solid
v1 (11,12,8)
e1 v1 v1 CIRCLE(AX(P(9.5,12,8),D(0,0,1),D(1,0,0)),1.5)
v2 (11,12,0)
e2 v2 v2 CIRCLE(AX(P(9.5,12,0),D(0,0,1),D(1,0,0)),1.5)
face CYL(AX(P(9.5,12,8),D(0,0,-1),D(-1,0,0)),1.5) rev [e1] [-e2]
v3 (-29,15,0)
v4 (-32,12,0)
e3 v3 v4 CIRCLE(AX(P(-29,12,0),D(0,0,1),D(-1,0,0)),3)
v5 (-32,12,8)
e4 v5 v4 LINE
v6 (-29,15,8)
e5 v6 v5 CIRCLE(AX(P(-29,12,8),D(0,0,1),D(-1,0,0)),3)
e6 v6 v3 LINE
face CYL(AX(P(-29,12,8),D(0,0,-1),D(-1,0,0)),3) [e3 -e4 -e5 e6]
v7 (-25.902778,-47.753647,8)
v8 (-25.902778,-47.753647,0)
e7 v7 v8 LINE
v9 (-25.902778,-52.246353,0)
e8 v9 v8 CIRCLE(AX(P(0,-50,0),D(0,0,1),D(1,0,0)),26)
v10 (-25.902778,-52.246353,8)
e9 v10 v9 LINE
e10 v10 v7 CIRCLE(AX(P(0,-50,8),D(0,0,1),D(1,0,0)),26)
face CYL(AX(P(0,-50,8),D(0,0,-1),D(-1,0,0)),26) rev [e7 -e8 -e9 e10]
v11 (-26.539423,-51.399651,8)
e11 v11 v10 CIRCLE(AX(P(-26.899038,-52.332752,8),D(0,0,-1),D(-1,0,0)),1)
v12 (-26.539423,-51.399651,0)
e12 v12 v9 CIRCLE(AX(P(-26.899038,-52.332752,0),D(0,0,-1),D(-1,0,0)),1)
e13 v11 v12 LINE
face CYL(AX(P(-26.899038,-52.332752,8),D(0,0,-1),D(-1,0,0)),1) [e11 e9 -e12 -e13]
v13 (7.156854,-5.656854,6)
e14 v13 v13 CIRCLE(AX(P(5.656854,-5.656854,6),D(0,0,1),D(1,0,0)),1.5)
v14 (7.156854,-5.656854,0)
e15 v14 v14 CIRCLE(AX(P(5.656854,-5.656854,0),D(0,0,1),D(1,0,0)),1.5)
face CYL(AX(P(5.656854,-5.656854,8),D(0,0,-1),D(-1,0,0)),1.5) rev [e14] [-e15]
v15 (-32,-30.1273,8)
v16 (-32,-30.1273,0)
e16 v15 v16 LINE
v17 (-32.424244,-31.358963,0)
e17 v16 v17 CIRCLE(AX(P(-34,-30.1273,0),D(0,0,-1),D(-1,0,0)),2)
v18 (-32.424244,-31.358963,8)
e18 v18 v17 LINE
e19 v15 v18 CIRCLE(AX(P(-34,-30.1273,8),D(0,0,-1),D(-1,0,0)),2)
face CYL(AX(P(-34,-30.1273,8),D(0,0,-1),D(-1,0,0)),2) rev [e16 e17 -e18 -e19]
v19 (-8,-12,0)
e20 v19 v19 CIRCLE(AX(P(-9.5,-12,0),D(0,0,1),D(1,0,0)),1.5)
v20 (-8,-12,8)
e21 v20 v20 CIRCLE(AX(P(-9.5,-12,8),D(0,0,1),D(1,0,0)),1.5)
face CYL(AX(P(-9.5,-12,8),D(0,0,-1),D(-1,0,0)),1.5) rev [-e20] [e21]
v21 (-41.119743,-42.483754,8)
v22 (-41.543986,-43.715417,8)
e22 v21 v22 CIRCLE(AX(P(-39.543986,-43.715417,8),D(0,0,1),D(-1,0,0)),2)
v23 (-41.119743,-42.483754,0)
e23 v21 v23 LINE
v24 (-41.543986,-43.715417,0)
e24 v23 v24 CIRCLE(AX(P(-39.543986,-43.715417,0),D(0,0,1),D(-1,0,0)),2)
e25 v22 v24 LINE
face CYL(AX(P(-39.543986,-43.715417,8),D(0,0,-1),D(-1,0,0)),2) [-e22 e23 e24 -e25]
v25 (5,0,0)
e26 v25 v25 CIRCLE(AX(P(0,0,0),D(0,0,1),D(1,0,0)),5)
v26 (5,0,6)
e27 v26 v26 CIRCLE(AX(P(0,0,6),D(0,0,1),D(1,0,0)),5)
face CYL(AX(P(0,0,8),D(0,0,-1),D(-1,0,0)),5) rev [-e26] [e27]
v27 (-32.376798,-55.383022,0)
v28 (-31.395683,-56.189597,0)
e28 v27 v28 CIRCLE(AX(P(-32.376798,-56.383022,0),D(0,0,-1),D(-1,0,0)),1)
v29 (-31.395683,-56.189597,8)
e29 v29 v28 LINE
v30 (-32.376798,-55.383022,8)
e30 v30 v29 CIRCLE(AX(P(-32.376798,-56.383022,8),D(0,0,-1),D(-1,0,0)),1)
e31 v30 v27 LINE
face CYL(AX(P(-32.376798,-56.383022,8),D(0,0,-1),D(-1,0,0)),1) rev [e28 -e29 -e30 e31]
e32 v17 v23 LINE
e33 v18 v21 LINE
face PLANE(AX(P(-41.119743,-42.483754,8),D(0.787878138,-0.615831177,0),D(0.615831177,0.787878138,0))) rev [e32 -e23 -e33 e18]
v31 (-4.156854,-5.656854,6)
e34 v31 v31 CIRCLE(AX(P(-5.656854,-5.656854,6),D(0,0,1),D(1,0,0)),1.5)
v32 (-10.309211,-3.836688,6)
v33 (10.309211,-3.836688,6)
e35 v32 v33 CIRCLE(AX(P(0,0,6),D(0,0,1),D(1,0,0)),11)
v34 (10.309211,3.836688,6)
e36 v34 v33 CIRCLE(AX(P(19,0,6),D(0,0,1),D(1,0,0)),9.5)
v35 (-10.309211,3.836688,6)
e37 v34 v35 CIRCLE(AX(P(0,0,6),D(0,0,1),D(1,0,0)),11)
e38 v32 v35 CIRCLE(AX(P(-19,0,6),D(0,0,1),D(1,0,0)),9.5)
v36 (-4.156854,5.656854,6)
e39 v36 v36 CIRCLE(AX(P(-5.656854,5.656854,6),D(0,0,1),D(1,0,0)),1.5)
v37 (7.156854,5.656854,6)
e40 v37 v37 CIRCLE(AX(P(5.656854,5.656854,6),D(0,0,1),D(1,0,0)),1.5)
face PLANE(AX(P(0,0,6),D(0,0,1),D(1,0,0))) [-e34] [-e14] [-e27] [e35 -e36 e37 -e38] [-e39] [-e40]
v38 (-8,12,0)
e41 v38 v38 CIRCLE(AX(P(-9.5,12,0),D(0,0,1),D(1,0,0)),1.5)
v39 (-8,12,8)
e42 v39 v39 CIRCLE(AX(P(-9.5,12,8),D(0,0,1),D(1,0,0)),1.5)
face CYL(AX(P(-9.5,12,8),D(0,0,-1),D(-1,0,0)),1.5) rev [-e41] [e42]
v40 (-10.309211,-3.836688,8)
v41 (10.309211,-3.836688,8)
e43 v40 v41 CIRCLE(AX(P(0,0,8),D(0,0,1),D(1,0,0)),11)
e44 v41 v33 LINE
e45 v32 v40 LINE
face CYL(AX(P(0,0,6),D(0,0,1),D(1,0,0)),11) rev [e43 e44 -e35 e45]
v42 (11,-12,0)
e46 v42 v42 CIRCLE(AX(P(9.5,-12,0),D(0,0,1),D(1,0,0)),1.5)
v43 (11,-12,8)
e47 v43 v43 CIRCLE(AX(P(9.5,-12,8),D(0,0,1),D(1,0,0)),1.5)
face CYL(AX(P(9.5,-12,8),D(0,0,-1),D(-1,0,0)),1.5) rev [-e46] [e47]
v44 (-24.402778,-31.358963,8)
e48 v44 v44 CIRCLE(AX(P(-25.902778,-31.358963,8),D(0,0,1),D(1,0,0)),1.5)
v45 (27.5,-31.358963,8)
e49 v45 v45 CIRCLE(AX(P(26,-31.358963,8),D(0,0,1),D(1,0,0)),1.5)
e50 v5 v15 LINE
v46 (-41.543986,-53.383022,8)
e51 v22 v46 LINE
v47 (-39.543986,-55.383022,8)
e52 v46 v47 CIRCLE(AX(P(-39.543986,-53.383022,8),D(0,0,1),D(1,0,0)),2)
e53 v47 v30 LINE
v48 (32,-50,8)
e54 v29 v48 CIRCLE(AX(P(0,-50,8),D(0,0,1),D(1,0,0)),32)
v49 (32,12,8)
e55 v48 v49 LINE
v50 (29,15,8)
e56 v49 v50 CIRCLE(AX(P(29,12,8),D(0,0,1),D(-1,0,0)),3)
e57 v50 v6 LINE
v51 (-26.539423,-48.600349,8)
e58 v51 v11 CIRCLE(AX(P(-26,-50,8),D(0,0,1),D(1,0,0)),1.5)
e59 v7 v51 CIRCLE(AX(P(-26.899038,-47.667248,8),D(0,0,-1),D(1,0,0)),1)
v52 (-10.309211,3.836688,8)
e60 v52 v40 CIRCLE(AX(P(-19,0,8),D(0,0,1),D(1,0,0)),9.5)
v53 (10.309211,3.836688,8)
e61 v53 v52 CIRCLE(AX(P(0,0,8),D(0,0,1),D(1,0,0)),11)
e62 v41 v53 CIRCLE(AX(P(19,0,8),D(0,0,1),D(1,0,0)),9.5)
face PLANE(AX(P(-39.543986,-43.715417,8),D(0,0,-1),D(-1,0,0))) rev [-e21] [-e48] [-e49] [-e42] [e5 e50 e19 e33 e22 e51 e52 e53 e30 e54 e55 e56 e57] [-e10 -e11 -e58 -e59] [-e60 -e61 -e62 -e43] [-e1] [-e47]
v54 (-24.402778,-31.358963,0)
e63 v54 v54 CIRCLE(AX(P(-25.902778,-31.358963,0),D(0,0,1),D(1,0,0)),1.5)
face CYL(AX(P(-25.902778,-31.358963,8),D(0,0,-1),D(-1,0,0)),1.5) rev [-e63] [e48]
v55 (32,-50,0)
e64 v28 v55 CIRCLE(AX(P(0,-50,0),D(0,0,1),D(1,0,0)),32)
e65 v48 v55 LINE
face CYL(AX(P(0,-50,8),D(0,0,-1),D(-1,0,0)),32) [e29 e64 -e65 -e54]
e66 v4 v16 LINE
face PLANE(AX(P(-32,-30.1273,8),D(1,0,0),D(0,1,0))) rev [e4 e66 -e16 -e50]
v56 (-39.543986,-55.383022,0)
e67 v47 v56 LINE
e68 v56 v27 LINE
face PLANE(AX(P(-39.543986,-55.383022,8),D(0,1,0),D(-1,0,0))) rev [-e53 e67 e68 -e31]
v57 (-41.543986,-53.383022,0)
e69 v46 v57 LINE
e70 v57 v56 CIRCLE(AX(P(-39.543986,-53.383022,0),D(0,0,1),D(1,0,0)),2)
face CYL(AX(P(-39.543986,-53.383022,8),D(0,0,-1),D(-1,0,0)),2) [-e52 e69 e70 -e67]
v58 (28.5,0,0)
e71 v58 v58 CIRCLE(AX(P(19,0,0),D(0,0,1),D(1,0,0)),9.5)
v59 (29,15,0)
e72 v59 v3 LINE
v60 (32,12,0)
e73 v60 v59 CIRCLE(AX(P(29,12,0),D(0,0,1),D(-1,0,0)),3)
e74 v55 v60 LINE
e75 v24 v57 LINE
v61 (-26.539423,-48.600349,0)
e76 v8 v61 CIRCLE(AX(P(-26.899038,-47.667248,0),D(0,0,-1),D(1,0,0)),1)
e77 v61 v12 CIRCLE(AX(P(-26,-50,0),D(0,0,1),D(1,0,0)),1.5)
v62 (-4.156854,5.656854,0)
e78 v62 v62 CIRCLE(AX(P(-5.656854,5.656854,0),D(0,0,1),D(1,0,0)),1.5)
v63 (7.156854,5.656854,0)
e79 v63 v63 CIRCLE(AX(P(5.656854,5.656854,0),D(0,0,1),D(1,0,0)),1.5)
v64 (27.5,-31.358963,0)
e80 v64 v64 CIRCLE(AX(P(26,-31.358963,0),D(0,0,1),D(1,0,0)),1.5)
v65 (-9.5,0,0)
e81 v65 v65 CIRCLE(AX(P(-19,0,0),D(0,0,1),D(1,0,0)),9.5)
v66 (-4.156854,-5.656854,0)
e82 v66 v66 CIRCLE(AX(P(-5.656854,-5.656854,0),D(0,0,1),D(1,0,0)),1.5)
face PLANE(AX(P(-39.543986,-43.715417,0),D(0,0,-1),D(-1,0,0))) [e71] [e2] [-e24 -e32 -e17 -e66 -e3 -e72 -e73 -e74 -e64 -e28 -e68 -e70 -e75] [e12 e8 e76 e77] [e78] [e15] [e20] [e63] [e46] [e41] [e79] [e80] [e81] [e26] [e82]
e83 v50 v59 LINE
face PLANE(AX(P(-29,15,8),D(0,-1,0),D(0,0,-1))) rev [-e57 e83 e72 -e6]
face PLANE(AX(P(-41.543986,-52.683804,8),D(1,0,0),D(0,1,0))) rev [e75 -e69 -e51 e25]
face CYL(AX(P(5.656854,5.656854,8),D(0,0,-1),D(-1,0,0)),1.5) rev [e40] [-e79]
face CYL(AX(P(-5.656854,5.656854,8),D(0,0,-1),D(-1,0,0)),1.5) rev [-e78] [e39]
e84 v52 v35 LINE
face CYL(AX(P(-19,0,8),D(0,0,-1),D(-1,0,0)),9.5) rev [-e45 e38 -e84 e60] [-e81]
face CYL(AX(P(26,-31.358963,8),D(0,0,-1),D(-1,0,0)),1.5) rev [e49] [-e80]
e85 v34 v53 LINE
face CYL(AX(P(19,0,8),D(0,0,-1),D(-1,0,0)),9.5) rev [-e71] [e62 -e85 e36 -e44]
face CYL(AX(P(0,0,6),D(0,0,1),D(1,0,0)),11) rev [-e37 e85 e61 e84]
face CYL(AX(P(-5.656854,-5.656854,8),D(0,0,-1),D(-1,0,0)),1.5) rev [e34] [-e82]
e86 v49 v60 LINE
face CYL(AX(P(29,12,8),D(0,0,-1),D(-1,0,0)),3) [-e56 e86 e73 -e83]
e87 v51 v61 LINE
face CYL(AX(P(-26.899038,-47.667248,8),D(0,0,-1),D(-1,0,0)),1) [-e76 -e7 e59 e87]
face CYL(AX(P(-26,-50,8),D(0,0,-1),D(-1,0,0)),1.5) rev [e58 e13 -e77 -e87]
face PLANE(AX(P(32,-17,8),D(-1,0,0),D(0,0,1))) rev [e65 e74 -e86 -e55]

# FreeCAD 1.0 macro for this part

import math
import FreeCAD as App
import Part
import Sketcher
Q = App.Units.Quantity

doc = App.newDocument("Part")
body = doc.addObject("PartDesign::Body", "Body")

# Sketch on XY plane
sketch1 = body.newObject("Sketcher::SketchObject", "Sketch")
sketch1.AttachmentSupport = (doc.getObject("XY_Plane"), [""])
sketch1.MapMode = "FlatFace"
sketch1.addGeometry([
    Part.LineSegment(App.Vector(32, -50, 0), App.Vector(32, 12, 0)),  # 0
    Part.ArcOfCircle(Part.Circle(App.Vector(29, 12, 0), App.Vector(0, 0, 1), 3), math.radians(0), math.radians(90)),  # 1
    Part.LineSegment(App.Vector(29, 15, 0), App.Vector(-29, 15, 0)),  # 2
    Part.ArcOfCircle(Part.Circle(App.Vector(-29, 12, 0), App.Vector(0, 0, 1), 3), math.radians(90), math.radians(180)),  # 3
    Part.LineSegment(App.Vector(-32, 12, 0), App.Vector(-32, -30.1, 0)),  # 4
    Part.ArcOfCircle(Part.Circle(App.Vector(-34, -30.1, 0), App.Vector(0, 0, 1), 2), math.radians(-38), math.radians(0)),  # 5
    Part.LineSegment(App.Vector(-32.4, -31.4, 0), App.Vector(-41.1, -42.5, 0)),  # 6
    Part.ArcOfCircle(Part.Circle(App.Vector(-39.5, -43.7, 0), App.Vector(0, 0, 1), 2), math.radians(142), math.radians(180)),  # 7
    Part.LineSegment(App.Vector(-41.5, -43.7, 0), App.Vector(-41.5, -53.4, 0)),  # 8
    Part.ArcOfCircle(Part.Circle(App.Vector(-39.5, -53.4, 0), App.Vector(0, 0, 1), 2), math.radians(180), math.radians(270)),  # 9
    Part.LineSegment(App.Vector(-39.5, -55.4, 0), App.Vector(-32.4, -55.4, 0)),  # 10
    Part.ArcOfCircle(Part.Circle(App.Vector(-32.4, -56.4, 0), App.Vector(0, 0, 1), 1), math.radians(11), math.radians(90)),  # 11
    Part.ArcOfCircle(Part.Circle(App.Vector(0, -50, 0), App.Vector(0, 0, 1), 32), math.radians(-169), math.radians(0)),  # 12
    Part.Circle(App.Vector(-25.9, -31.4, 0), App.Vector(0, 0, 1), 1.5),  # 13
    Part.ArcOfCircle(Part.Circle(App.Vector(0, -50, 0), App.Vector(0, 0, 1), 26), math.radians(-175), math.radians(175)),  # 14
    Part.ArcOfCircle(Part.Circle(App.Vector(-26.9, -52.3, 0), App.Vector(0, 0, 1), 1), math.radians(5), math.radians(69)),  # 15
    Part.ArcOfCircle(Part.Circle(App.Vector(-26, -50, 0), App.Vector(0, 0, 1), 1.5), math.radians(111), math.radians(249)),  # 16
    Part.ArcOfCircle(Part.Circle(App.Vector(-26.9, -47.7, 0), App.Vector(0, 0, 1), 1), math.radians(-69), math.radians(-5)),  # 17
    Part.Circle(App.Vector(26, -31.4, 0), App.Vector(0, 0, 1), 1.5),  # 18
    Part.Circle(App.Vector(-9.5, -12, 0), App.Vector(0, 0, 1), 1.5),  # 19
    Part.Circle(App.Vector(-19, 0, 0), App.Vector(0, 0, 1), 9.5),  # 20
    Part.Circle(App.Vector(-5.7, -5.7, 0), App.Vector(0, 0, 1), 1.5),  # 21
    Part.Circle(App.Vector(-9.5, 12, 0), App.Vector(0, 0, 1), 1.5),  # 22
    Part.Circle(App.Vector(-5.7, 5.7, 0), App.Vector(0, 0, 1), 1.5),  # 23
    Part.Circle(App.Vector(9.5, -12, 0), App.Vector(0, 0, 1), 1.5),  # 24
    Part.Circle(App.Vector(5.7, -5.7, 0), App.Vector(0, 0, 1), 1.5),  # 25
    Part.Circle(App.Vector(0, 0, 0), App.Vector(0, 0, 1), 5),  # 26
    Part.Circle(App.Vector(5.7, 5.7, 0), App.Vector(0, 0, 1), 1.5),  # 27
    Part.Circle(App.Vector(9.5, 12, 0), App.Vector(0, 0, 1), 1.5),  # 28
    Part.Circle(App.Vector(19, 0, 0), App.Vector(0, 0, 1), 9.5),  # 29
], False)
sketch1.addConstraint([
    Sketcher.Constraint("Tangent", 0, 2, 1, 1),
    Sketcher.Constraint("Tangent", 1, 2, 2, 1),
    Sketcher.Constraint("Tangent", 2, 2, 3, 1),
    Sketcher.Constraint("Tangent", 3, 2, 4, 1),
    Sketcher.Constraint("Tangent", 4, 2, 5, 2),
    Sketcher.Constraint("Tangent", 5, 1, 6, 1),
    Sketcher.Constraint("Tangent", 6, 2, 7, 1),
    Sketcher.Constraint("Tangent", 7, 2, 8, 1),
    Sketcher.Constraint("Tangent", 8, 2, 9, 1),
    Sketcher.Constraint("Tangent", 9, 2, 10, 1),
    Sketcher.Constraint("Tangent", 10, 2, 11, 2),
    Sketcher.Constraint("Tangent", 11, 1, 12, 1),
    Sketcher.Constraint("Tangent", 12, 2, 0, 1),
    Sketcher.Constraint("Tangent", 14, 1, 15, 1),
    Sketcher.Constraint("Tangent", 15, 2, 16, 2),
    Sketcher.Constraint("Tangent", 16, 1, 17, 1),
    Sketcher.Constraint("Tangent", 17, 2, 14, 2),
    Sketcher.Constraint("Vertical", 0),
    Sketcher.Constraint("Horizontal", 2),
    Sketcher.Constraint("Vertical", 4),
    Sketcher.Constraint("Vertical", 8),
    Sketcher.Constraint("Horizontal", 10),
    Sketcher.Constraint("Coincident", 26, 3, -1, 1),
    Sketcher.Constraint("Coincident", 14, 3, 12, 3),
    Sketcher.Constraint("Equal", 1, 3),
    Sketcher.Constraint("Equal", 5, 7),
    Sketcher.Constraint("Equal", 7, 9),
    Sketcher.Constraint("Equal", 11, 15),
    Sketcher.Constraint("Equal", 13, 16),
    Sketcher.Constraint("Equal", 15, 17),
    Sketcher.Constraint("Equal", 16, 18),
    Sketcher.Constraint("Equal", 18, 19),
    Sketcher.Constraint("Equal", 19, 21),
    Sketcher.Constraint("Equal", 21, 22),
    Sketcher.Constraint("Equal", 22, 23),
    Sketcher.Constraint("Equal", 23, 24),
    Sketcher.Constraint("Equal", 24, 25),
    Sketcher.Constraint("Equal", 25, 27),
    Sketcher.Constraint("Equal", 27, 28),
    Sketcher.Constraint("Equal", 20, 29),
    Sketcher.Constraint("Symmetric", 22, 3, 24, 3, -1, 1),
    Sketcher.Constraint("Symmetric", 23, 3, 25, 3, -1, 1),
    Sketcher.Constraint("Symmetric", 21, 3, 27, 3, -1, 1),
    Sketcher.Constraint("Symmetric", 19, 3, 28, 3, -1, 1),
    Sketcher.Constraint("Symmetric", 20, 3, 29, 3, -1, 1),
    Sketcher.Constraint("Symmetric", 19, 3, 24, 3, -2),
    Sketcher.Constraint("Symmetric", 21, 3, 25, 3, -2),
    Sketcher.Constraint("PointOnObject", 12, 3, -2),
    Sketcher.Constraint("PointOnObject", 20, 3, -1),
    Sketcher.Constraint("Horizontal", 14, 3, 16, 3),
    Sketcher.Constraint("Horizontal", 13, 3, 18, 3),
    Sketcher.Constraint("Horizontal", 3, 3, 22, 3),
    Sketcher.Constraint("Horizontal", 18, 3, 5, 1),
    Sketcher.Constraint("Vertical", 13, 3, 14, 1),
    Sketcher.Constraint("Diameter", 13, Q("3 mm")),
    Sketcher.Constraint("Diameter", 20, Q("19 mm")),
    Sketcher.Constraint("Diameter", 26, Q("10 mm")),
    Sketcher.Constraint("Radius", 1, Q("3 mm")),
    Sketcher.Constraint("Radius", 5, Q("2 mm")),
    Sketcher.Constraint("Radius", 11, Q("1 mm")),
    Sketcher.Constraint("Radius", 12, Q("32 mm")),
    Sketcher.Constraint("Radius", 14, Q("26 mm")),
    Sketcher.Constraint("DistanceX", 2, 2, 2, 1, Q("58 mm")),
    Sketcher.Constraint("DistanceY", 0, 1, 0, 2, Q("62 mm")),
    Sketcher.Constraint("DistanceY", -1, 1, 1, 3, Q("12 mm")),
    Sketcher.Constraint("DistanceX", 16, 3, -1, 1, Q("26 mm")),
    Sketcher.Constraint("DistanceX", -1, 1, 18, 3, Q("26 mm")),
    Sketcher.Constraint("DistanceX", 20, 3, -1, 1, Q("19 mm")),
    Sketcher.Constraint("DistanceX", 19, 3, 24, 3, Q("19 mm")),
    Sketcher.Constraint("DistanceY", 4, 2, 4, 1, Q("42.1273 mm")),
    Sketcher.Constraint("DistanceX", 10, 1, 10, 2, Q("7.167189 mm")),
    Sketcher.Constraint("DistanceX", 6, 2, 5, 1, Q("8.695499 mm")),
    Sketcher.Constraint("Distance", 6, Q("14.119939 mm")),
    Sketcher.Constraint("DistanceY", 13, 3, 21, 3, Q("25.702108 mm")),
    Sketcher.Constraint("DistanceX", 21, 3, 25, 3, Q("11.313708 mm")),
])
pad1 = body.newObject("PartDesign::Pad", "Pad")
pad1.Profile = sketch1
pad1.Length = 8

# Sketch on XY plane
sketch2 = body.newObject("Sketcher::SketchObject", "Sketch001")
sketch2.AttachmentSupport = (doc.getObject("XY_Plane"), [""])
sketch2.MapMode = "FlatFace"
sketch2.AttachmentOffset = App.Placement(App.Vector(0, 0, 8), App.Rotation())
sketch2.addGeometry(Part.Circle(App.Vector(0, 0, 0), App.Vector(0, 0, 1), 11), False)
sketch2.addConstraint([
    Sketcher.Constraint("Coincident", 0, 3, -1, 1),
    Sketcher.Constraint("Diameter", 0, Q("22 mm")),
])
pocket1 = body.newObject("PartDesign::Pocket", "Pocket")
pocket1.Profile = sketch2
pocket1.Length = 2

doc.recompute()
